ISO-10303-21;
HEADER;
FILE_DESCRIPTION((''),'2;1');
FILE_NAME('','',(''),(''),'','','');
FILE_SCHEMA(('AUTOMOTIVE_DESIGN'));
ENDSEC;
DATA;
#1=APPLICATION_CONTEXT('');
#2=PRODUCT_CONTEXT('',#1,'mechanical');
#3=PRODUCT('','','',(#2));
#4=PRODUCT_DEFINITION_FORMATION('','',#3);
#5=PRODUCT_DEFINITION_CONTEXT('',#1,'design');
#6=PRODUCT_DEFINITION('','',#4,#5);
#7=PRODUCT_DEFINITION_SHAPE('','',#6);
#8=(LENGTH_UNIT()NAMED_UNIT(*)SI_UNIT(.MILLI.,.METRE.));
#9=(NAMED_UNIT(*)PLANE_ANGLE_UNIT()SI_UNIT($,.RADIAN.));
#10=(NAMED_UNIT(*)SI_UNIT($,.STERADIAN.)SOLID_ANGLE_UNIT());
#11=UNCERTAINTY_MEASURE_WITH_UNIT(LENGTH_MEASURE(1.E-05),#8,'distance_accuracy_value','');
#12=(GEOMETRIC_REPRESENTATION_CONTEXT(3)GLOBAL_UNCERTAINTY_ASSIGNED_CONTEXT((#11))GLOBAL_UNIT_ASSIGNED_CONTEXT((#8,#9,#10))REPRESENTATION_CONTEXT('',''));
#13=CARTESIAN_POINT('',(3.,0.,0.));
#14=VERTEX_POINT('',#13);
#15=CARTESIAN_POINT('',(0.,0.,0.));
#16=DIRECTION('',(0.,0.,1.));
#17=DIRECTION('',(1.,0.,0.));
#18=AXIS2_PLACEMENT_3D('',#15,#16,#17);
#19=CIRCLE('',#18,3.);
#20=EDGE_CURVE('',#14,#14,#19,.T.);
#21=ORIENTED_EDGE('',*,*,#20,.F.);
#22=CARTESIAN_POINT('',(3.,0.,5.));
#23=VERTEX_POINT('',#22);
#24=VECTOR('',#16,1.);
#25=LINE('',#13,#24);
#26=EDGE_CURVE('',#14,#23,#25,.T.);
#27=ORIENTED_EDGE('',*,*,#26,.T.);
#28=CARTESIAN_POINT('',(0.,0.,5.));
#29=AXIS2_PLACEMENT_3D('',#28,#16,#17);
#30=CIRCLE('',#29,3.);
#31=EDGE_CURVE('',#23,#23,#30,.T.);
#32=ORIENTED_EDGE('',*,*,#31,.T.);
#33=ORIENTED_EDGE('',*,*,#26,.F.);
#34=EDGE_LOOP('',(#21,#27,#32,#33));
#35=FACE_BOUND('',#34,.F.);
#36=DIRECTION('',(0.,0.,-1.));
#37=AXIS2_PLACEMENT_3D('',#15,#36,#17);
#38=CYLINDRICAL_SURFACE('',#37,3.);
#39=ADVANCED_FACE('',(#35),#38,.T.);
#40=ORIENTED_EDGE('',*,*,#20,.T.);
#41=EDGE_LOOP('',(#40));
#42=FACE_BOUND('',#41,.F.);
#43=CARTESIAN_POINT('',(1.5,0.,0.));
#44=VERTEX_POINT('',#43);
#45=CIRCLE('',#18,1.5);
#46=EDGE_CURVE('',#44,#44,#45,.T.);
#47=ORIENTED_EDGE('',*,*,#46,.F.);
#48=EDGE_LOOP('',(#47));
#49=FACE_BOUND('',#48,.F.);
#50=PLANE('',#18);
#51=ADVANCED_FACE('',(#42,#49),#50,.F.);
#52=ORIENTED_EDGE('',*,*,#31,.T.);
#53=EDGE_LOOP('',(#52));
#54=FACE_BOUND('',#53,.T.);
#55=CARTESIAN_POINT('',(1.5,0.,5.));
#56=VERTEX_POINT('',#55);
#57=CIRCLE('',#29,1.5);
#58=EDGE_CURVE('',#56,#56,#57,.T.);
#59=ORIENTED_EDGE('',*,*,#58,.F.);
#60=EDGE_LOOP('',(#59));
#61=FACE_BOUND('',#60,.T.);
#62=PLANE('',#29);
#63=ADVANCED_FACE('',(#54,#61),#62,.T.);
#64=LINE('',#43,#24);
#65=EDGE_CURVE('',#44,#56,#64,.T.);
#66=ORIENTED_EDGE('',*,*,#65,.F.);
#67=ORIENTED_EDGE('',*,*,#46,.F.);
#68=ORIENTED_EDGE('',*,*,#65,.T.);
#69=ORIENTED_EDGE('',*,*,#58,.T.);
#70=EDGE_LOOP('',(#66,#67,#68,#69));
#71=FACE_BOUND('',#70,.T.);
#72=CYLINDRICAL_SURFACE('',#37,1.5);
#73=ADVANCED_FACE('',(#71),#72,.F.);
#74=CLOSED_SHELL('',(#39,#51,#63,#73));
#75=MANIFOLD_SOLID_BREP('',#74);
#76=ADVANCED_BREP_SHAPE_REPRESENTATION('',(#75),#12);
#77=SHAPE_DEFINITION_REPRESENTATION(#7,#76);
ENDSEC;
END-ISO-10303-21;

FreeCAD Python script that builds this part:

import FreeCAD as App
import Part
import Sketcher
from FreeCAD import Vector
Q = App.Units.Quantity

doc = App.newDocument("Part")
params = doc.addObject("Spreadsheet::Sheet", "Params")
for row, (alias, value) in enumerate([
    ("sketch1_diameter", "6 mm"),
    ("sketch1_diameter2", "3 mm"),
    ("pad1_length", "5 mm"),
], start=1):
    params.set(f"A{row}", alias)
    params.set(f"B{row}", "=" + value)
    params.setAlias(f"B{row}", alias)

body = doc.addObject("PartDesign::Body", "Body")

# Sketch on XY plane
sketch1 = doc.addObject("Sketcher::SketchObject", "Sketch")
body.addObject(sketch1)
sketch1.AttachmentSupport = (doc.XY_Plane, [""])
sketch1.MapMode = "FlatFace"
sketch1.addGeometry(Part.Circle(Vector(0, 0, 0), Vector(0, 0, 1), 3), False)
sketch1.addGeometry(Part.Circle(Vector(0, 0, 0), Vector(0, 0, 1), 1.5), False)
sketch1.addConstraint(Sketcher.Constraint("Coincident", 0, 3, -1, 1))
sketch1.addConstraint(Sketcher.Constraint("Coincident", 1, 3, -1, 1))
sketch1.addConstraint(Sketcher.Constraint("Diameter", 0, Q("6 mm")))
sketch1.addConstraint(Sketcher.Constraint("Diameter", 1, Q("3 mm")))
sketch1.setExpression("Constraints[2]", "Params.sketch1_diameter")
sketch1.setExpression("Constraints[3]", "Params.sketch1_diameter2")
pad1 = doc.addObject("PartDesign::Pad", "Pad")
body.addObject(pad1)
pad1.Profile = sketch1
pad1.setExpression("Length", "Params.pad1_length")

doc.recompute()
